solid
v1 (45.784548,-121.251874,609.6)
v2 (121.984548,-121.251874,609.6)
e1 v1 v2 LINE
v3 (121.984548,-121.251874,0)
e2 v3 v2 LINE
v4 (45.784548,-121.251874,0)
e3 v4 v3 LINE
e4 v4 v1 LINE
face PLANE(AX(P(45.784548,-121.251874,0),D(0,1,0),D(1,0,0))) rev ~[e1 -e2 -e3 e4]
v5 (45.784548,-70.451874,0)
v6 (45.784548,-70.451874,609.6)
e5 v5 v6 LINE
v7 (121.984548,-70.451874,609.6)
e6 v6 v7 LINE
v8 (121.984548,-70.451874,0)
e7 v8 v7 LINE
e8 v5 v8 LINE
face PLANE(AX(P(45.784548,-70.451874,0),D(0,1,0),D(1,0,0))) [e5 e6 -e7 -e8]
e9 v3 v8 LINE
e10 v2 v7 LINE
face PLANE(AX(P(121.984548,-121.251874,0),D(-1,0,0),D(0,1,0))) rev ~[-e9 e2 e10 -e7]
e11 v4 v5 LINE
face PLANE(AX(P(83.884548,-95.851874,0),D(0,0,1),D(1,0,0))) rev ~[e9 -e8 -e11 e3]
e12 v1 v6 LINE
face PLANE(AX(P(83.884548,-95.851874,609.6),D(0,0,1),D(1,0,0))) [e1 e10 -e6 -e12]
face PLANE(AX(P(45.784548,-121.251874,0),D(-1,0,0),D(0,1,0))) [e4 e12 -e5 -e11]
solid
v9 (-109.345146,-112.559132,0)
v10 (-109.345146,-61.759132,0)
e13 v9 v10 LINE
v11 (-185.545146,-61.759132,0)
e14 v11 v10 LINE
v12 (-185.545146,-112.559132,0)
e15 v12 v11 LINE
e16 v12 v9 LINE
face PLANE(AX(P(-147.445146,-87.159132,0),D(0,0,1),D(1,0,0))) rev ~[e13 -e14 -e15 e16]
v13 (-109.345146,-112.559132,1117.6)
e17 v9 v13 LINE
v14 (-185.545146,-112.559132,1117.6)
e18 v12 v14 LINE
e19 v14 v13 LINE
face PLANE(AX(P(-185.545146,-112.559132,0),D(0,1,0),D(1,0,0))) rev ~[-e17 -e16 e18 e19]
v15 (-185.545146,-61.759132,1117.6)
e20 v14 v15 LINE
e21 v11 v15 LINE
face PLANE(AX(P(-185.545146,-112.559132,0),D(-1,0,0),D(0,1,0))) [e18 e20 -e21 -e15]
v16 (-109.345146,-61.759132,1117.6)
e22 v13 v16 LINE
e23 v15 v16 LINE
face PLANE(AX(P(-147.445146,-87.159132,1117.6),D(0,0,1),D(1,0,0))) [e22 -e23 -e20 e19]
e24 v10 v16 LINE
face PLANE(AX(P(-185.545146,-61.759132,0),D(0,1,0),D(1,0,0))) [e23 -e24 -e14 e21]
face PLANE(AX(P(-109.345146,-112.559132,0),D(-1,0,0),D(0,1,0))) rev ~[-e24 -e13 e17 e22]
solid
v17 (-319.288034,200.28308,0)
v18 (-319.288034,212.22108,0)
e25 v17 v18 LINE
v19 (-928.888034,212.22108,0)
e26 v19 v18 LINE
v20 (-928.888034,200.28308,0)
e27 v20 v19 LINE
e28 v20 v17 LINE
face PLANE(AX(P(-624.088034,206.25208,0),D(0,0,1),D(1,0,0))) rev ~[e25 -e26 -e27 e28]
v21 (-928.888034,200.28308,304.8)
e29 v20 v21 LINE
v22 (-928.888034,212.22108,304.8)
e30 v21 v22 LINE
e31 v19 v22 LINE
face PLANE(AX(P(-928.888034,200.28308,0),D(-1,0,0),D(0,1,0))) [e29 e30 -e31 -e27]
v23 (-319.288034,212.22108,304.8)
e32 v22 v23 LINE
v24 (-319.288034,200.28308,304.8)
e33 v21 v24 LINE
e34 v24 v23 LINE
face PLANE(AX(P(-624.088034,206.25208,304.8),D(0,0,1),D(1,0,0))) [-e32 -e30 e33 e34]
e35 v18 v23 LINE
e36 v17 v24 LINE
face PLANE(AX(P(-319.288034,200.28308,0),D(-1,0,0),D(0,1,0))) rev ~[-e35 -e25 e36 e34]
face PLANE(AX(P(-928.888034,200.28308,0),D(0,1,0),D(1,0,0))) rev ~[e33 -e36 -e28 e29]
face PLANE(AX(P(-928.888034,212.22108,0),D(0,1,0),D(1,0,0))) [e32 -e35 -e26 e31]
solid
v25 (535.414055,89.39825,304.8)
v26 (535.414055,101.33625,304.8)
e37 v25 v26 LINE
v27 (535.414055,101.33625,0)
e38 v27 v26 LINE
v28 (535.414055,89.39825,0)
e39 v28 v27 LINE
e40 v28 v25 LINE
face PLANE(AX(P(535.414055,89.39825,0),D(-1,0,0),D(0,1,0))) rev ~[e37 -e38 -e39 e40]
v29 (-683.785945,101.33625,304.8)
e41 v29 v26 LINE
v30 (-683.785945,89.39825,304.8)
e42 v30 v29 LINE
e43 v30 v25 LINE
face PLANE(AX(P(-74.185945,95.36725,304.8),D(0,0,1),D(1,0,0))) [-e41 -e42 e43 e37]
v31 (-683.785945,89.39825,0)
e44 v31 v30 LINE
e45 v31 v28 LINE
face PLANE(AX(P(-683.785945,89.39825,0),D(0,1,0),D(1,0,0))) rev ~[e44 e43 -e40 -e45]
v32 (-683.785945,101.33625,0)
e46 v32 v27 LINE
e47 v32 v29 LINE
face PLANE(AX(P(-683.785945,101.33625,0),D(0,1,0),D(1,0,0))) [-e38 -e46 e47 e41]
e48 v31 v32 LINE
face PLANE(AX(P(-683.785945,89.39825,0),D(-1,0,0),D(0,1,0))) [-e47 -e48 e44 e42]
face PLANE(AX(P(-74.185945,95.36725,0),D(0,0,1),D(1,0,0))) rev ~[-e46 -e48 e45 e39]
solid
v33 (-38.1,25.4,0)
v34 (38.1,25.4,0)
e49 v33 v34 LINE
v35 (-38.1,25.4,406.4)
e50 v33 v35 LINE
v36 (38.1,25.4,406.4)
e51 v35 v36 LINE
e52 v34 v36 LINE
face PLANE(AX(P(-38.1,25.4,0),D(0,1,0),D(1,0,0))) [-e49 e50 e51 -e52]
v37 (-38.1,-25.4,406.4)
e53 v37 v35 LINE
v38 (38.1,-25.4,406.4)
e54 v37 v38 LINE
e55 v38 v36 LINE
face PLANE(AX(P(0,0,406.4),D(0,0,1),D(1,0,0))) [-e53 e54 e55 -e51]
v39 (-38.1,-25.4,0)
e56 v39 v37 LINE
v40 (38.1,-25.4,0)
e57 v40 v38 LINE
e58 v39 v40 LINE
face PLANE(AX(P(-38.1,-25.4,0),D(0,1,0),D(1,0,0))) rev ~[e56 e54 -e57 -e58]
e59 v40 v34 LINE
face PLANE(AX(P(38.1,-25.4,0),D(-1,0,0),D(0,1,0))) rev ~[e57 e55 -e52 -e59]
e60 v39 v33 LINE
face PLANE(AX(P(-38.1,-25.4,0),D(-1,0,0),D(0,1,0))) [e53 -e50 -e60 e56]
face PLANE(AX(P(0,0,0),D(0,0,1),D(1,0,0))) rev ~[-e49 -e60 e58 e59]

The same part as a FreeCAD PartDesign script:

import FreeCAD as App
import Part
import Sketcher
from FreeCAD import Vector
Q = App.Units.Quantity

doc = App.newDocument("Part")
body = doc.addObject("PartDesign::Body", "Body")

# Sketch on XY plane
sketch1 = body.newObject("Sketcher::SketchObject", "Sketch")
sketch1.AttachmentSupport = (doc.getObject("XY_Plane"), [""])
sketch1.MapMode = "FlatFace"
sketch1.addGeometry([
    Part.LineSegment(Vector(-38, 25, 0), Vector(-38, -25, 0)),
    Part.LineSegment(Vector(-38, -25, 0), Vector(38, -25, 0)),
    Part.LineSegment(Vector(38, -25, 0), Vector(38, 25, 0)),
    Part.LineSegment(Vector(38, 25, 0), Vector(-38, 25, 0)),
], False)
sketch1.addConstraint([
    Sketcher.Constraint("Coincident", 0, 2, 1, 1),
    Sketcher.Constraint("Coincident", 1, 2, 2, 1),
    Sketcher.Constraint("Coincident", 2, 2, 3, 1),
    Sketcher.Constraint("Coincident", 3, 2, 0, 1),
    Sketcher.Constraint("Vertical", 0),
    Sketcher.Constraint("Horizontal", 1),
    Sketcher.Constraint("Vertical", 2),
    Sketcher.Constraint("Horizontal", 3),
    Sketcher.Constraint("Symmetric", 0, 2, 2, 2, -1, 1),
    Sketcher.Constraint("DistanceX", 1, 1, 1, 2, Q("3 in")),
    Sketcher.Constraint("DistanceY", 0, 2, 0, 1, Q("2 in")),
])
pad1 = body.newObject("PartDesign::Pad", "Pad")
pad1.Profile = sketch1
pad1.Length = Q("16 in")
body2 = doc.addObject("PartDesign::Body", "Body001")

# Sketch on XY plane
sketch2 = body2.newObject("Sketcher::SketchObject", "Sketch001")
sketch2.AttachmentSupport = (doc.getObject("XY_Plane001"), [""])
sketch2.MapMode = "FlatFace"
sketch2.addGeometry([
    Part.LineSegment(Vector(46, -70, 0), Vector(46, -121, 0)),
    Part.LineSegment(Vector(46, -121, 0), Vector(122, -121, 0)),
    Part.LineSegment(Vector(122, -121, 0), Vector(122, -70, 0)),
    Part.LineSegment(Vector(122, -70, 0), Vector(46, -70, 0)),
], False)
sketch2.addConstraint([
    Sketcher.Constraint("Coincident", 0, 2, 1, 1),
    Sketcher.Constraint("Coincident", 1, 2, 2, 1),
    Sketcher.Constraint("Coincident", 2, 2, 3, 1),
    Sketcher.Constraint("Coincident", 3, 2, 0, 1),
    Sketcher.Constraint("Vertical", 0),
    Sketcher.Constraint("Horizontal", 1),
    Sketcher.Constraint("Vertical", 2),
    Sketcher.Constraint("Horizontal", 3),
    Sketcher.Constraint("DistanceX", 1, 1, 1, 2, Q("3 in")),
    Sketcher.Constraint("DistanceY", 0, 2, 0, 1, Q("2 in")),
    Sketcher.Constraint("DistanceX", -1, 1, 1, 2, Q("121.984548 mm")),
    Sketcher.Constraint("DistanceY", 0, 2, -1, 1, Q("121.251874 mm")),
])
pad2 = body2.newObject("PartDesign::Pad", "Pad001")
pad2.Profile = sketch2
pad2.Length = Q("24 in")
body3 = doc.addObject("PartDesign::Body", "Body002")

# Sketch on XY plane
sketch3 = body3.newObject("Sketcher::SketchObject", "Sketch002")
sketch3.AttachmentSupport = (doc.getObject("XY_Plane002"), [""])
sketch3.MapMode = "FlatFace"
sketch3.addGeometry([
    Part.LineSegment(Vector(-186, -62, 0), Vector(-186, -113, 0)),
    Part.LineSegment(Vector(-186, -113, 0), Vector(-109, -113, 0)),
    Part.LineSegment(Vector(-109, -113, 0), Vector(-109, -62, 0)),
    Part.LineSegment(Vector(-109, -62, 0), Vector(-186, -62, 0)),
], False)
sketch3.addConstraint([
    Sketcher.Constraint("Coincident", 0, 2, 1, 1),
    Sketcher.Constraint("Coincident", 1, 2, 2, 1),
    Sketcher.Constraint("Coincident", 2, 2, 3, 1),
    Sketcher.Constraint("Coincident", 3, 2, 0, 1),
    Sketcher.Constraint("Vertical", 0),
    Sketcher.Constraint("Horizontal", 1),
    Sketcher.Constraint("Vertical", 2),
    Sketcher.Constraint("Horizontal", 3),
    Sketcher.Constraint("DistanceX", 1, 1, 1, 2, Q("3 in")),
    Sketcher.Constraint("DistanceY", 0, 2, 0, 1, Q("2 in")),
    Sketcher.Constraint("DistanceX", 0, 2, -1, 1, Q("185.545146 mm")),
    Sketcher.Constraint("DistanceY", 0, 2, -1, 1, Q("112.559132 mm")),
])
pad3 = body3.newObject("PartDesign::Pad", "Pad002")
pad3.Profile = sketch3
pad3.Length = Q("44 in")
body4 = doc.addObject("PartDesign::Body", "Body003")

# Sketch on XY plane
sketch4 = body4.newObject("Sketcher::SketchObject", "Sketch003")
sketch4.AttachmentSupport = (doc.getObject("XY_Plane003"), [""])
sketch4.MapMode = "FlatFace"
sketch4.addGeometry([
    Part.LineSegment(Vector(-684, 101, 0), Vector(-684, 89, 0)),
    Part.LineSegment(Vector(-684, 89, 0), Vector(535, 89, 0)),
    Part.LineSegment(Vector(535, 89, 0), Vector(535, 101, 0)),
    Part.LineSegment(Vector(535, 101, 0), Vector(-684, 101, 0)),
], False)
sketch4.addConstraint([
    Sketcher.Constraint("Coincident", 0, 2, 1, 1),
    Sketcher.Constraint("Coincident", 1, 2, 2, 1),
    Sketcher.Constraint("Coincident", 2, 2, 3, 1),
    Sketcher.Constraint("Coincident", 3, 2, 0, 1),
    Sketcher.Constraint("Vertical", 0),
    Sketcher.Constraint("Horizontal", 1),
    Sketcher.Constraint("Vertical", 2),
    Sketcher.Constraint("Horizontal", 3),
    Sketcher.Constraint("DistanceX", 1, 1, 1, 2, Q("48 in")),
    Sketcher.Constraint("DistanceY", 0, 2, 0, 1, Q("0.47 in")),
    Sketcher.Constraint("DistanceY", -1, 1, 0, 2, Q("89.39825 mm")),
    Sketcher.Constraint("DistanceX", 0, 2, -1, 1, Q("683.785945 mm")),
])
pad4 = body4.newObject("PartDesign::Pad", "Pad003")
pad4.Profile = sketch4
pad4.Length = Q("12 in")
body5 = doc.addObject("PartDesign::Body", "Body004")

# Sketch on XY plane
sketch5 = body5.newObject("Sketcher::SketchObject", "Sketch004")
sketch5.AttachmentSupport = (doc.getObject("XY_Plane004"), [""])
sketch5.MapMode = "FlatFace"
sketch5.addGeometry([
    Part.LineSegment(Vector(-929, 212, 0), Vector(-929, 200, 0)),
    Part.LineSegment(Vector(-929, 200, 0), Vector(-319, 200, 0)),
    Part.LineSegment(Vector(-319, 200, 0), Vector(-319, 212, 0)),
    Part.LineSegment(Vector(-319, 212, 0), Vector(-929, 212, 0)),
], False)
sketch5.addConstraint([
    Sketcher.Constraint("Coincident", 0, 2, 1, 1),
    Sketcher.Constraint("Coincident", 1, 2, 2, 1),
    Sketcher.Constraint("Coincident", 2, 2, 3, 1),
    Sketcher.Constraint("Coincident", 3, 2, 0, 1),
    Sketcher.Constraint("Vertical", 0),
    Sketcher.Constraint("Horizontal", 1),
    Sketcher.Constraint("Vertical", 2),
    Sketcher.Constraint("Horizontal", 3),
    Sketcher.Constraint("DistanceX", 1, 1, 1, 2, Q("24 in")),
    Sketcher.Constraint("DistanceY", 0, 2, 0, 1, Q("0.47 in")),
    Sketcher.Constraint("DistanceY", -1, 1, 0, 2, Q("200.28308 mm")),
    Sketcher.Constraint("DistanceX", 0, 2, -1, 1, Q("928.888034 mm")),
])
pad5 = body5.newObject("PartDesign::Pad", "Pad004")
pad5.Profile = sketch5
pad5.Length = Q("12 in")

doc.recompute()
